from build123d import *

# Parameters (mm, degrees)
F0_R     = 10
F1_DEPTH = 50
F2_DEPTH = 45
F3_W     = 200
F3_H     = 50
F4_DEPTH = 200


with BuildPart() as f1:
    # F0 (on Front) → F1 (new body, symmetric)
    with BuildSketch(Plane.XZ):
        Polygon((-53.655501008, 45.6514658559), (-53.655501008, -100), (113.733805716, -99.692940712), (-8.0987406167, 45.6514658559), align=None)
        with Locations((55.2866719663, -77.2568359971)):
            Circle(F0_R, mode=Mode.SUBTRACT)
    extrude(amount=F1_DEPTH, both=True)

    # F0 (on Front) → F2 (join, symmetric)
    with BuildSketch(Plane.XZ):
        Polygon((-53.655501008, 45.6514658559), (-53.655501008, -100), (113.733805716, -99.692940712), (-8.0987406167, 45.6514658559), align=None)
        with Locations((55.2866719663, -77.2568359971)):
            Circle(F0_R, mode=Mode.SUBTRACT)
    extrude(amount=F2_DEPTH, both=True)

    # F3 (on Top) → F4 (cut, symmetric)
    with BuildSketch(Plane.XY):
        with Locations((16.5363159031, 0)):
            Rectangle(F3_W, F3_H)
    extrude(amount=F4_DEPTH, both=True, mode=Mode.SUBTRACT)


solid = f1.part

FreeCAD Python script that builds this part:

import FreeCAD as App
import Part
import Sketcher
Q = App.Units.Quantity


def add_polygon(sketch, points):
    """Adds a closed chain of lines whose ends are joined by coincident constraints."""
    first, n = sketch.GeometryCount, len(points)
    for a, b in zip(points, points[1:] + points[:1]):
        sketch.addGeometry(Part.LineSegment(App.Vector(*a, 0), App.Vector(*b, 0)), False)
    for i in range(n):
        sketch.addConstraint(Sketcher.Constraint("Coincident", first + i, 2, first + (i + 1) % n, 1))

doc = App.newDocument("Part")
body = doc.addObject("PartDesign::Body", "Body")
body.AllowCompound = True

sketch1 = body.newObject("Sketcher::SketchObject", "Sketch")
sketch1.AttachmentSupport = (doc.getObject("XZ_Plane"), [""])
sketch1.MapMode = "FlatFace"
add_polygon(sketch1, [(-54, 46), (-54, -100), (114, -100), (-8, 46)])
sketch1.addGeometry(Part.Circle(App.Vector(55, -77, 0), App.Vector(0, 0, 1), 10), False)
sketch1.addConstraint([
    Sketcher.Constraint("Vertical", 0),
    Sketcher.Constraint("Horizontal", 3),
    Sketcher.Constraint("Diameter", 4, Q("20 mm")),
    Sketcher.Constraint("DistanceY", 0, 2, -1, 1, Q("100 mm")),
    Sketcher.Constraint("DistanceX", 3, 2, 3, 1, Q("45.55676 mm")),
    Sketcher.Constraint("DistanceX", 0, 2, -1, 1, Q("53.655501 mm")),
    Sketcher.Constraint("DistanceY", 4, 3, 2, 2, Q("122.908302 mm")),
    Sketcher.Constraint("Distance", 1, Q("167.389588 mm")),
    Sketcher.Constraint("Distance", 2, Q("189.652751 mm")),
    Sketcher.Constraint("DistanceY", 0, 2, 0, 1, Q("145.651466 mm")),
    Sketcher.Constraint("DistanceX", -1, 1, 4, 3, Q("55.286672 mm")),
])
pad1 = body.newObject("PartDesign::Pad", "Pad")
pad1.Profile = sketch1
pad1.Length = 100
pad1.Midplane = True

sketch2 = body.newObject("Sketcher::SketchObject", "Sketch001")
sketch2.AttachmentSupport = (doc.getObject("XZ_Plane"), [""])
sketch2.MapMode = "FlatFace"
add_polygon(sketch2, [(-54, 46), (-54, -100), (114, -100), (-8, 46)])
sketch2.addGeometry(Part.Circle(App.Vector(55, -77, 0), App.Vector(0, 0, 1), 10), False)
sketch2.addConstraint([
    Sketcher.Constraint("Vertical", 0),
    Sketcher.Constraint("Horizontal", 3),
    Sketcher.Constraint("Diameter", 4, Q("20 mm")),
    Sketcher.Constraint("DistanceY", 0, 2, -1, 1, Q("100 mm")),
    Sketcher.Constraint("DistanceX", 3, 2, 3, 1, Q("45.55676 mm")),
    Sketcher.Constraint("DistanceX", 0, 2, -1, 1, Q("53.655501 mm")),
    Sketcher.Constraint("DistanceY", 4, 3, 2, 2, Q("122.908302 mm")),
    Sketcher.Constraint("Distance", 1, Q("167.389588 mm")),
    Sketcher.Constraint("Distance", 2, Q("189.652751 mm")),
    Sketcher.Constraint("DistanceY", 0, 2, 0, 1, Q("145.651466 mm")),
    Sketcher.Constraint("DistanceX", -1, 1, 4, 3, Q("55.286672 mm")),
])
pad2 = body.newObject("PartDesign::Pad", "Pad001")
pad2.Profile = sketch2
pad2.Length = 90
pad2.Midplane = True

sketch3 = body.newObject("Sketcher::SketchObject", "Sketch002")
sketch3.AttachmentSupport = (doc.getObject("XY_Plane"), [""])
sketch3.MapMode = "FlatFace"
add_polygon(sketch3, [(-83, 25), (-83, -25), (117, -25), (117, 25)])
sketch3.addConstraint([
    Sketcher.Constraint("Vertical", 0),
    Sketcher.Constraint("Horizontal", 1),
    Sketcher.Constraint("Vertical", 2),
    Sketcher.Constraint("Horizontal", 3),
    Sketcher.Constraint("DistanceX", 1, 1, 1, 2, Q("200 mm")),
    Sketcher.Constraint("DistanceY", 0, 2, 0, 1, Q("50 mm")),
    Sketcher.Constraint("DistanceY", 0, 2, -1, 1, Q("25 mm")),
    Sketcher.Constraint("DistanceX", 0, 2, -1, 1, Q("83.463684 mm")),
])
pocket1 = body.newObject("PartDesign::Pocket", "Pocket")
pocket1.Profile = sketch3
pocket1.Length = 400
pocket1.Midplane = True

doc.recompute()
